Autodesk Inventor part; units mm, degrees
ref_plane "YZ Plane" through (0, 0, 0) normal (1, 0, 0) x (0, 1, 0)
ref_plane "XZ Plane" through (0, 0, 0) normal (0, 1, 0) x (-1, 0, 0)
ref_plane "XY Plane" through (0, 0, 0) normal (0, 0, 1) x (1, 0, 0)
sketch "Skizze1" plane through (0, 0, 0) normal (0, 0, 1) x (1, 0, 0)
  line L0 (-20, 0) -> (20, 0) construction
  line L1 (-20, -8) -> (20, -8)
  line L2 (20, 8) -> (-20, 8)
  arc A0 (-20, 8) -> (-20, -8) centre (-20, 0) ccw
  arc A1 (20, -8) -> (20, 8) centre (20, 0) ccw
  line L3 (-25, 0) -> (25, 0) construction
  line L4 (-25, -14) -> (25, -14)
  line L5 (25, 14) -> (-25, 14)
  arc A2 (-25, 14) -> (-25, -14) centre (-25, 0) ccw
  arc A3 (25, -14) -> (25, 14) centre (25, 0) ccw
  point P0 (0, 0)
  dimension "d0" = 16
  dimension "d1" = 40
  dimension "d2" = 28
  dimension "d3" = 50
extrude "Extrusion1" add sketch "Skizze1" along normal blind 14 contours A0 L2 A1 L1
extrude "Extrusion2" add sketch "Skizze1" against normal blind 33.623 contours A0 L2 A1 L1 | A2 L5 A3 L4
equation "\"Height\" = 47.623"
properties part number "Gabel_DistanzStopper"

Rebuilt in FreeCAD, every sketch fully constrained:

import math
import FreeCAD as App
import Part
import Sketcher
from FreeCAD import Vector
Q = App.Units.Quantity

doc = App.newDocument("Part")
params = doc.addObject("Spreadsheet::Sheet", "Params")
for row, (alias, value) in enumerate([
    ("sketch1_radius", "8 mm"),
    ("sketch1_width", "40 mm"),
    ("pad1_length", "14 mm"),
    ("sketch2_radius", "14 mm"),
    ("sketch2_width", "50 mm"),
    ("pad2_length", "33.623 mm"),
], start=1):
    params.set(f"A{row}", alias)
    params.set(f"B{row}", "=" + value)
    params.setAlias(f"B{row}", alias)

body = doc.addObject("PartDesign::Body", "Body")

sketch1 = body.newObject("Sketcher::SketchObject", "Sketch")
sketch1.AttachmentSupport = (doc.getObject("XY_Plane"), [""])
sketch1.MapMode = "FlatFace"
sketch1.addGeometry(Part.ArcOfCircle(Part.Circle(Vector(-20, 0, 0), Vector(0, 0, 1), 8), math.radians(90), math.radians(270)), False)
sketch1.addGeometry(Part.LineSegment(Vector(-20, -8, 0), Vector(20, -8, 0)), False)
sketch1.addGeometry(Part.ArcOfCircle(Part.Circle(Vector(20, 0, 0), Vector(0, 0, 1), 8), math.radians(-90), math.radians(90)), False)
sketch1.addGeometry(Part.LineSegment(Vector(20, 8, 0), Vector(-20, 8, 0)), False)
sketch1.addConstraint(Sketcher.Constraint("Tangent", 0, 2, 1, 1))
sketch1.addConstraint(Sketcher.Constraint("Tangent", 1, 2, 2, 1))
sketch1.addConstraint(Sketcher.Constraint("Tangent", 2, 2, 3, 1))
sketch1.addConstraint(Sketcher.Constraint("Tangent", 3, 2, 0, 1))
sketch1.addConstraint(Sketcher.Constraint("Horizontal", 1))
sketch1.addConstraint(Sketcher.Constraint("Horizontal", 3))
sketch1.addConstraint(Sketcher.Constraint("Symmetric", 0, 3, 2, 3, -1, 1))
sketch1.addConstraint(Sketcher.Constraint("Radius", 0, Q("8 mm")))
sketch1.addConstraint(Sketcher.Constraint("DistanceX", 1, 1, 1, 2, Q("40 mm")))
sketch1.setExpression("Constraints[7]", "Params.sketch1_radius")
sketch1.setExpression("Constraints[8]", "Params.sketch1_width")
pad1 = body.newObject("PartDesign::Pad", "Pad")
pad1.Profile = sketch1
pad1.setExpression("Length", "Params.pad1_length")

sketch2 = body.newObject("Sketcher::SketchObject", "Sketch001")
sketch2.AttachmentSupport = (doc.getObject("XY_Plane"), [""])
sketch2.MapMode = "FlatFace"
sketch2.addGeometry(Part.ArcOfCircle(Part.Circle(Vector(-25, 0, 0), Vector(0, 0, 1), 14), math.radians(90), math.radians(270)), False)
sketch2.addGeometry(Part.LineSegment(Vector(-25, -14, 0), Vector(25, -14, 0)), False)
sketch2.addGeometry(Part.ArcOfCircle(Part.Circle(Vector(25, 0, 0), Vector(0, 0, 1), 14), math.radians(-90), math.radians(90)), False)
sketch2.addGeometry(Part.LineSegment(Vector(25, 14, 0), Vector(-25, 14, 0)), False)
sketch2.addConstraint(Sketcher.Constraint("Tangent", 0, 2, 1, 1))
sketch2.addConstraint(Sketcher.Constraint("Tangent", 1, 2, 2, 1))
sketch2.addConstraint(Sketcher.Constraint("Tangent", 2, 2, 3, 1))
sketch2.addConstraint(Sketcher.Constraint("Tangent", 3, 2, 0, 1))
sketch2.addConstraint(Sketcher.Constraint("Horizontal", 1))
sketch2.addConstraint(Sketcher.Constraint("Horizontal", 3))
sketch2.addConstraint(Sketcher.Constraint("Symmetric", 0, 3, 2, 3, -1, 1))
sketch2.addConstraint(Sketcher.Constraint("Radius", 0, Q("14 mm")))
sketch2.addConstraint(Sketcher.Constraint("DistanceX", 1, 1, 1, 2, Q("50 mm")))
sketch2.setExpression("Constraints[7]", "Params.sketch2_radius")
sketch2.setExpression("Constraints[8]", "Params.sketch2_width")
pad2 = body.newObject("PartDesign::Pad", "Pad001")
pad2.Profile = sketch2
pad2.setExpression("Length", "Params.pad2_length")
pad2.Reversed = True

doc.recompute()
